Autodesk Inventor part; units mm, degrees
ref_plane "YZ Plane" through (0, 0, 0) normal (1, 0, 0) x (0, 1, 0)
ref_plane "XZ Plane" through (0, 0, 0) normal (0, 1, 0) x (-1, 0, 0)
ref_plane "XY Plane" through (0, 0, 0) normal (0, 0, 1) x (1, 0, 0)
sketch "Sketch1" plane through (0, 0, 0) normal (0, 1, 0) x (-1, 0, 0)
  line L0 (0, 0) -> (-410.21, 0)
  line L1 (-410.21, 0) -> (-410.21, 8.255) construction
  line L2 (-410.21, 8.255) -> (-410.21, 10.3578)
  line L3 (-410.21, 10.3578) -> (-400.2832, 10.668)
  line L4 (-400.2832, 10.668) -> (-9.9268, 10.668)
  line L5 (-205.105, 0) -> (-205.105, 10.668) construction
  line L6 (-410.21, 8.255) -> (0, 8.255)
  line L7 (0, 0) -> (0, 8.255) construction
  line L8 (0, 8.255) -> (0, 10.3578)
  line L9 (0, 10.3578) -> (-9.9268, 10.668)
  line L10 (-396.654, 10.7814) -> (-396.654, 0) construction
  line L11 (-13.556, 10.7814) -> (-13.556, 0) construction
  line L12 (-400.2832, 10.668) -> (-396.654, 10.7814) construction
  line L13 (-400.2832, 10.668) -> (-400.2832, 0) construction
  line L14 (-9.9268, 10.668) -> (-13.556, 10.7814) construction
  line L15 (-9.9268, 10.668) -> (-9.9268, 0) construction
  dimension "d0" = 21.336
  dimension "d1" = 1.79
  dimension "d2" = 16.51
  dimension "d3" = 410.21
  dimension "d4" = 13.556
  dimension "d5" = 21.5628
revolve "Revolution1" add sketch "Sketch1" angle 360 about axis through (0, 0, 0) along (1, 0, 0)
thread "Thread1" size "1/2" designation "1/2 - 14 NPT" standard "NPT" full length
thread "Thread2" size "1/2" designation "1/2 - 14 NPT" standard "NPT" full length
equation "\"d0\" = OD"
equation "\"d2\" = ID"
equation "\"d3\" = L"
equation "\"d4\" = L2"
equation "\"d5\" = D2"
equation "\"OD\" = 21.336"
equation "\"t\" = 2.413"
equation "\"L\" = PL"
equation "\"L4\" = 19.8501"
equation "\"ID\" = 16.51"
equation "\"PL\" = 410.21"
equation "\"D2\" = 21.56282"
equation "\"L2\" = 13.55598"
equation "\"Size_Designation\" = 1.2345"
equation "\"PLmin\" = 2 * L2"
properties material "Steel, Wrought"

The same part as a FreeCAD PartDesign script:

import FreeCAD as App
import Part
import Sketcher

V = App.Vector
Q = App.Units.Quantity


def add_polygon(sketch, points):
    """Adds a closed chain of lines whose ends are joined by coincident constraints."""
    first, n = sketch.GeometryCount, len(points)
    for a, b in zip(points, points[1:] + points[:1]):
        sketch.addGeometry(Part.LineSegment(App.Vector(*a, 0), App.Vector(*b, 0)), False)
    for i in range(n):
        sketch.addConstraint(Sketcher.Constraint("Coincident", first + i, 2, first + (i + 1) % n, 1))

doc = App.newDocument("Part")
body = doc.addObject("PartDesign::Body", "Body")

# Sketch on XZ plane
sketch1 = body.newObject("Sketcher::SketchObject", "Sketch")
sketch1.AttachmentSupport = (doc.getObject("XZ_Plane"), [""])
sketch1.MapMode = "FlatFace"
add_polygon(sketch1, [(410.21, 10.3578), (410.21, 8.255), (0, 8.255), (0, 10.3578), (9.9268, 10.668), (400.2832, 10.668)])  # lines 0-5
sketch1.addConstraint(Sketcher.Constraint("Vertical", 0))
sketch1.addConstraint(Sketcher.Constraint("Horizontal", 1))
sketch1.addConstraint(Sketcher.Constraint("Vertical", 2))
sketch1.addConstraint(Sketcher.Constraint("Horizontal", 4))
sketch1.addConstraint(Sketcher.Constraint("PointOnObject", 1, 2, -2))
sketch1.addConstraint(Sketcher.Constraint("Horizontal", 2, 2, 5, 2))
sketch1.addConstraint(Sketcher.Constraint("Equal", 3, 5))
sketch1.addConstraint(Sketcher.Constraint("DistanceX", 1, 2, 1, 1, Q("16.15 in")))
sketch1.addConstraint(Sketcher.Constraint("Angle", 3, Q("1.7898 deg")))
sketch1.addConstraint(Sketcher.Constraint("DistanceY", -1, 1, 3, 2, Q("0.42 in")))
sketch1.addConstraint(Sketcher.Constraint("Distance", 3, Q("0.391 in")))
sketch1.addConstraint(Sketcher.Constraint("DistanceY", -1, 1, 0, 2, Q("0.325 in")))
revolution = body.newObject("PartDesign::Revolution", "Revolution")
revolution.Profile = sketch1
revolution.ReferenceAxis = (sketch1, ["H_Axis"])
revolution.Angle = 360

doc.recompute()
